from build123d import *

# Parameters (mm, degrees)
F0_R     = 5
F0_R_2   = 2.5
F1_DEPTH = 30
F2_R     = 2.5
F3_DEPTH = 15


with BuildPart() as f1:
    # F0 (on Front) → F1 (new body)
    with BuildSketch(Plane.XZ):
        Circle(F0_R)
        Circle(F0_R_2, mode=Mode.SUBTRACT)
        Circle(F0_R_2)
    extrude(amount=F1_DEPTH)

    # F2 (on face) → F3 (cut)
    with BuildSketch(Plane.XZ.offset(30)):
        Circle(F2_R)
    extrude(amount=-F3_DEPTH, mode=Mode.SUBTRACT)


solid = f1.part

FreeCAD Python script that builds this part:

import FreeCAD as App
import Part
import Sketcher

V = App.Vector
Q = App.Units.Quantity

doc = App.newDocument("Part")
body = doc.addObject("PartDesign::Body", "Body")

sketch1 = body.newObject("Sketcher::SketchObject", "Sketch")
sketch1.AttachmentSupport = (doc.getObject("XZ_Plane"), [""])
sketch1.MapMode = "FlatFace"
sketch1.addGeometry(Part.Circle(V(0, 0, 0), V(0, 0, 1), 5), False)
sketch1.addConstraint([
    Sketcher.Constraint("Coincident", 0, 3, -1, 1),
    Sketcher.Constraint("Diameter", 0, Q("10 mm")),
])
pad1 = body.newObject("PartDesign::Pad", "Pad")
pad1.Profile = sketch1
pad1.Length = 30

sketch2 = body.newObject("Sketcher::SketchObject", "Sketch001")
sketch2.AttachmentSupport = (doc.getObject("XZ_Plane"), [""])
sketch2.MapMode = "FlatFace"
sketch2.AttachmentOffset = App.Placement(V(0, 0, 30), App.Rotation())
sketch2.addGeometry(Part.Circle(V(0, 0, 0), V(0, 0, 1), 2.5), False)
sketch2.addConstraint([
    Sketcher.Constraint("Coincident", 0, 3, -1, 1),
    Sketcher.Constraint("Diameter", 0, Q("5 mm")),
])
pocket1 = body.newObject("PartDesign::Pocket", "Pocket")
pocket1.Profile = sketch2
pocket1.Length = 15

doc.recompute()
